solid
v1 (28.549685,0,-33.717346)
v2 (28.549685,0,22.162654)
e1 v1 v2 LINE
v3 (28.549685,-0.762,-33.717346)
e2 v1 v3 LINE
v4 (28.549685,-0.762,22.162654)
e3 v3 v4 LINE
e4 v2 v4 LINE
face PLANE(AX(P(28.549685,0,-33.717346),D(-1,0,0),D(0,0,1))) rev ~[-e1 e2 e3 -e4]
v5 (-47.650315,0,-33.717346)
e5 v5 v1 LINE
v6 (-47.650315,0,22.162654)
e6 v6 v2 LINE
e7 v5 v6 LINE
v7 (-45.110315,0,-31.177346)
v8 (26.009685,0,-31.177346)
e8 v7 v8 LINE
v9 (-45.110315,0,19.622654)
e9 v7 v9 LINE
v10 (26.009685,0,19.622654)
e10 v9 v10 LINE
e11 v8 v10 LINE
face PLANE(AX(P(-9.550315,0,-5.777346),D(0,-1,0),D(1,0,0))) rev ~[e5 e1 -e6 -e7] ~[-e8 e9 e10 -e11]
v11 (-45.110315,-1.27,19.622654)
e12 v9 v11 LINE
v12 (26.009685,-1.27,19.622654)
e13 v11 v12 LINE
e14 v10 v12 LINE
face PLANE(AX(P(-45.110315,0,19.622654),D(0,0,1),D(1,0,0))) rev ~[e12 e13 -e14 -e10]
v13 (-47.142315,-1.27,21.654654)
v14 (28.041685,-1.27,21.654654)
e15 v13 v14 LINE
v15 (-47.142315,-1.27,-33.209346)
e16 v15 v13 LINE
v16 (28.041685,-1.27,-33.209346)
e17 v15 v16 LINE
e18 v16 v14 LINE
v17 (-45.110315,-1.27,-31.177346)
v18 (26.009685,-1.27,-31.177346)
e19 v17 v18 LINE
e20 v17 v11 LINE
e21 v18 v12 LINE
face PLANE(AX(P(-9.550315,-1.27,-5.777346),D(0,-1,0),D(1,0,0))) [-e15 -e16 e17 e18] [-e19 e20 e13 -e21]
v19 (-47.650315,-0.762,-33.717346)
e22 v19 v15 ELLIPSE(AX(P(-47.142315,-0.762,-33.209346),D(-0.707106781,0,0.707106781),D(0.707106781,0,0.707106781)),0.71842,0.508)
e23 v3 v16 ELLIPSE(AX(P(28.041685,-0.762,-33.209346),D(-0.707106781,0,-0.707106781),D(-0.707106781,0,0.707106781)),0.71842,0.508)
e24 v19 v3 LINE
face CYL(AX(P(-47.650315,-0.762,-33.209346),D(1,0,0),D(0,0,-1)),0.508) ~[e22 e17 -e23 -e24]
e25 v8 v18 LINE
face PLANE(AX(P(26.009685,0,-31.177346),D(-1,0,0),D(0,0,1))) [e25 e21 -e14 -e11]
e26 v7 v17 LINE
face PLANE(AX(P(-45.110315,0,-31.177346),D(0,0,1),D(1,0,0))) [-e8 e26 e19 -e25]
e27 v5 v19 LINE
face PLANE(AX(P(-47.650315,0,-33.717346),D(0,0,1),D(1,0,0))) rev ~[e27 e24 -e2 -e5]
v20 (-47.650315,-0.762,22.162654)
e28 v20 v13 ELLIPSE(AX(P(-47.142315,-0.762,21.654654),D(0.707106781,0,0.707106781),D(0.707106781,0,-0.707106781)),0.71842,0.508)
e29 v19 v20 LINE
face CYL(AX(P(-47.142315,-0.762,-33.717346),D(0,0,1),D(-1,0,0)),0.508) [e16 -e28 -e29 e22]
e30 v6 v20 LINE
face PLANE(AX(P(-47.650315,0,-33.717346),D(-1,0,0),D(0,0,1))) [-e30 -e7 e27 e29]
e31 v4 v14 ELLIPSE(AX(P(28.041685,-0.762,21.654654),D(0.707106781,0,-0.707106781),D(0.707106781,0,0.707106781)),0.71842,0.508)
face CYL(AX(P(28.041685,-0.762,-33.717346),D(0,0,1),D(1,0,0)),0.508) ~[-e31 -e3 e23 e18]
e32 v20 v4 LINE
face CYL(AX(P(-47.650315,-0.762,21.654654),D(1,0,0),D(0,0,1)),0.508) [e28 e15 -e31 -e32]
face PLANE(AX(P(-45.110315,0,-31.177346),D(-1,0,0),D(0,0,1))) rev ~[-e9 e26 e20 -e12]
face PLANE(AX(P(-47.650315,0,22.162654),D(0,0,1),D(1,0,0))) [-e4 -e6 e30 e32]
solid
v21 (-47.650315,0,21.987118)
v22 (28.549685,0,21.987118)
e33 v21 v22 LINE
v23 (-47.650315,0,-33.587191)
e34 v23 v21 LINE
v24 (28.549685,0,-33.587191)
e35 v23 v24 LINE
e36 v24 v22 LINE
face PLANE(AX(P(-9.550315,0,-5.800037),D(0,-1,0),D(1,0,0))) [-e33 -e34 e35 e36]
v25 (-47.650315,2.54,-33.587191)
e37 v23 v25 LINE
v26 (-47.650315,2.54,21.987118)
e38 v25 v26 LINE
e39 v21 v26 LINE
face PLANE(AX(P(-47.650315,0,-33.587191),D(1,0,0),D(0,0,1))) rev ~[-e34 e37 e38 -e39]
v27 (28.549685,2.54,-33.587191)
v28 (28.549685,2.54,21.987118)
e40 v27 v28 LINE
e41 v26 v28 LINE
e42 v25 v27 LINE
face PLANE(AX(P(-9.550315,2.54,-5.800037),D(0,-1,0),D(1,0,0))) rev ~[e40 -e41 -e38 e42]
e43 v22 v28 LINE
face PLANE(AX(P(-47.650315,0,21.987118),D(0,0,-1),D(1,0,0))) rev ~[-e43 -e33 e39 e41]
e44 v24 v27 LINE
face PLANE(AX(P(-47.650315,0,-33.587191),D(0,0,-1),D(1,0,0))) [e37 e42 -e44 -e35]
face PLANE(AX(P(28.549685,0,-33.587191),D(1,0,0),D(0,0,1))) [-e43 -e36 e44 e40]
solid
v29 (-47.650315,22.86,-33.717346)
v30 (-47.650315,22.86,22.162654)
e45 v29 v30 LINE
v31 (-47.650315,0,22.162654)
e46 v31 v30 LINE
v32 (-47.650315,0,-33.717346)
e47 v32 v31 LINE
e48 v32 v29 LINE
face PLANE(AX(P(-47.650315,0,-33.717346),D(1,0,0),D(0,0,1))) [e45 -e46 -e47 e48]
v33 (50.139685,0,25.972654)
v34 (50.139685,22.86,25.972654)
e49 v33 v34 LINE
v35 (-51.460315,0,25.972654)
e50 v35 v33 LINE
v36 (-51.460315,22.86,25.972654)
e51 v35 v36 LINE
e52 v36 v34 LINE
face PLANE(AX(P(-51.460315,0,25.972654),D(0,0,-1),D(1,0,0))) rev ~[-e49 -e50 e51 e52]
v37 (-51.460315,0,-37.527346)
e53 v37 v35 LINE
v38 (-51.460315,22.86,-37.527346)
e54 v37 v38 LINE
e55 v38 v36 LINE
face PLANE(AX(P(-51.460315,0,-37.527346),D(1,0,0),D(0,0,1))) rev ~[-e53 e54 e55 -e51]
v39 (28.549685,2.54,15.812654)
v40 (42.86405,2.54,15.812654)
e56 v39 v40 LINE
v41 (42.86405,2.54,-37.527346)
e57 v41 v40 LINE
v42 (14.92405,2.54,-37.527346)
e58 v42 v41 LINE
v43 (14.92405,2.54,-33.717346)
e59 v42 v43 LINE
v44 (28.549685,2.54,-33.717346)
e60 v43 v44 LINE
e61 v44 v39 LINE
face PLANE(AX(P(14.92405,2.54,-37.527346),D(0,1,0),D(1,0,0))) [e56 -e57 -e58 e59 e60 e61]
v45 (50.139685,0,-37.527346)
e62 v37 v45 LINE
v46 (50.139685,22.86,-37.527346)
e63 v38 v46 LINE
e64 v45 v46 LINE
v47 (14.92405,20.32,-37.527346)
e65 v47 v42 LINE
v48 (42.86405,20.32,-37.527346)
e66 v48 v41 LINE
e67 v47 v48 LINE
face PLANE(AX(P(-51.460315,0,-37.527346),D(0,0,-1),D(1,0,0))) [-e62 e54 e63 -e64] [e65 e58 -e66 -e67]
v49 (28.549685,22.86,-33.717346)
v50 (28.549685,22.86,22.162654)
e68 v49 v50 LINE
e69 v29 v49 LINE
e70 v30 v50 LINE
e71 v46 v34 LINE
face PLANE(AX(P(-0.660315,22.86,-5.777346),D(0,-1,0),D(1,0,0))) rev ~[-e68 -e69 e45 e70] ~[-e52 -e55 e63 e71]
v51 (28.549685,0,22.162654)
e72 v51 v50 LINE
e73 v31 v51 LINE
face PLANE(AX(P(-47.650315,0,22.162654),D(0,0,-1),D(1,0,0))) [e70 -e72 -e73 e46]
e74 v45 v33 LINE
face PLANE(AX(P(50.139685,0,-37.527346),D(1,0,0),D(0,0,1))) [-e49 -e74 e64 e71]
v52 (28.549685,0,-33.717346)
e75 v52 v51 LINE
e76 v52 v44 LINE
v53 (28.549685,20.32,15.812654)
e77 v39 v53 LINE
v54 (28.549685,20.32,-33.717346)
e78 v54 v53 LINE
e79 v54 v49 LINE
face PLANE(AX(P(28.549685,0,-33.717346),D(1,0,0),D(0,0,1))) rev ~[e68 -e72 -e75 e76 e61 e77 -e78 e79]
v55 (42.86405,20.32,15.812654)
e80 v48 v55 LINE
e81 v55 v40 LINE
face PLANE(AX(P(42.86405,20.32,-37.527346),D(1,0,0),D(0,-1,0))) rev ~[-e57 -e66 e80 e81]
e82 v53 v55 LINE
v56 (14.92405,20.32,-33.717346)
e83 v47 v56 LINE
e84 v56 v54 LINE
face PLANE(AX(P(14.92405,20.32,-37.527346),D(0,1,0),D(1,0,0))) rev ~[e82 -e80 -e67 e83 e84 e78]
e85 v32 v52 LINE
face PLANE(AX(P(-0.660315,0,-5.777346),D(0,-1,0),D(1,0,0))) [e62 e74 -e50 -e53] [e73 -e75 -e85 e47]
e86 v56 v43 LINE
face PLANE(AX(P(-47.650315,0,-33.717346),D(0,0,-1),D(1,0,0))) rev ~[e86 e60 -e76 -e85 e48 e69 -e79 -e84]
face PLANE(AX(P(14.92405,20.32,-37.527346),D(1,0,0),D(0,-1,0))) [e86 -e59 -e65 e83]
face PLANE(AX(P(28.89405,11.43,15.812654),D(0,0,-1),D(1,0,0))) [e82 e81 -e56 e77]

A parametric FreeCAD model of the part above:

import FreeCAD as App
import Part
import Sketcher

V = App.Vector
Q = App.Units.Quantity


def edges_at(feature, points):
    """Names of the edges that pass closest to the given points."""
    edges = feature.Shape.Edges
    near = lambda p: min(range(len(edges)), key=lambda i: edges[i].distToShape(Part.Vertex(*p))[0])
    return sorted({f"Edge{near(p) + 1}" for p in points})

doc = App.newDocument("Part")
body = doc.addObject("PartDesign::Body", "Body")

# Sketch on XZ plane
sketch1 = doc.addObject("Sketcher::SketchObject", "Sketch")
body.addObject(sketch1)
sketch1.AttachmentSupport = (doc.XZ_Plane, [""])
sketch1.MapMode = "FlatFace"
sketch1.addGeometry([
    Part.LineSegment(V(-47.650315, 22.162654, 0), V(-47.650315, -33.717346, 0)),  # 0
    Part.LineSegment(V(-47.650315, -33.717346, 0), V(28.549685, -33.717346, 0)),  # 1
    Part.LineSegment(V(28.549685, -33.717346, 0), V(28.549685, 22.162654, 0)),  # 2
    Part.LineSegment(V(28.549685, 22.162654, 0), V(-47.650315, 22.162654, 0)),  # 3
    Part.LineSegment(V(26.009685, -31.177346, 0), V(-45.110315, -31.177346, 0)),  # 4
    Part.LineSegment(V(-45.110315, -31.177346, 0), V(-45.110315, 19.622654, 0)),  # 5
    Part.LineSegment(V(-45.110315, 19.622654, 0), V(26.009685, 19.622654, 0)),  # 6
    Part.LineSegment(V(26.009685, 19.622654, 0), V(26.009685, -31.177346, 0)),  # 7
], False)
sketch1.addConstraint([
    Sketcher.Constraint("Coincident", 0, 2, 1, 1),
    Sketcher.Constraint("Coincident", 1, 2, 2, 1),
    Sketcher.Constraint("Coincident", 2, 2, 3, 1),
    Sketcher.Constraint("Coincident", 3, 2, 0, 1),
    Sketcher.Constraint("Coincident", 4, 2, 5, 1),
    Sketcher.Constraint("Coincident", 5, 2, 6, 1),
    Sketcher.Constraint("Coincident", 6, 2, 7, 1),
    Sketcher.Constraint("Coincident", 7, 2, 4, 1),
    Sketcher.Constraint("Vertical", 0),
    Sketcher.Constraint("Horizontal", 1),
    Sketcher.Constraint("Vertical", 2),
    Sketcher.Constraint("Horizontal", 3),
    Sketcher.Constraint("Horizontal", 4),
    Sketcher.Constraint("Vertical", 5),
    Sketcher.Constraint("Horizontal", 6),
    Sketcher.Constraint("Vertical", 7),
    Sketcher.Constraint("DistanceX", 1, 1, 1, 2, Q("3 in")),
    Sketcher.Constraint("DistanceY", 5, 1, 5, 2, Q("2 in")),
    Sketcher.Constraint("DistanceX", 4, 2, 4, 1, Q("2.8 in")),
    Sketcher.Constraint("DistanceY", 0, 2, 0, 1, Q("2.2 in")),
    Sketcher.Constraint("DistanceX", 0, 2, 4, 2, Q("0.1 in")),
    Sketcher.Constraint("DistanceY", 0, 2, 4, 2, Q("0.1 in")),
    Sketcher.Constraint("DistanceX", 0, 2, -1, 1, Q("47.650315 mm")),
    Sketcher.Constraint("DistanceY", 0, 2, -1, 1, Q("33.717346 mm")),
])
pad1 = doc.addObject("PartDesign::Pad", "Pad")
body.addObject(pad1)
pad1.Profile = sketch1
pad1.Length = Q("0.05 in")
doc.recompute()

fillet = doc.addObject("PartDesign::Fillet", "Fillet")
body.addObject(fillet)
fillet.Base = (pad1, edges_at(pad1, [
    (28.55, -1.27, -5.777),
    (-9.55, -1.27, 22.163),
    (-9.55, -1.27, -33.717),
    (-47.65, -1.27, -5.777),
]))
fillet.Radius = Q("0.02 in")
body2 = doc.addObject("PartDesign::Body", "Body001")

# Sketch on XZ plane
sketch2 = doc.addObject("Sketcher::SketchObject", "Sketch001")
body2.addObject(sketch2)
sketch2.AttachmentSupport = (doc.getObject("XZ_Plane001"), [""])
sketch2.MapMode = "FlatFace"
sketch2.addGeometry([
    Part.LineSegment(V(-51.460315, 25.972654, 0), V(-51.460315, -37.527346, 0)),  # 0
    Part.LineSegment(V(-51.460315, -37.527346, 0), V(50.139685, -37.527346, 0)),  # 1
    Part.LineSegment(V(50.139685, -37.527346, 0), V(50.139685, 25.972654, 0)),  # 2
    Part.LineSegment(V(50.139685, 25.972654, 0), V(-51.460315, 25.972654, 0)),  # 3
    Part.LineSegment(V(28.549685, -33.717346, 0), V(-47.650315, -33.717346, 0)),  # 4
    Part.LineSegment(V(-47.650315, -33.717346, 0), V(-47.650315, 22.162654, 0)),  # 5
    Part.LineSegment(V(-47.650315, 22.162654, 0), V(28.549685, 22.162654, 0)),  # 6
    Part.LineSegment(V(28.549685, 22.162654, 0), V(28.549685, -33.717346, 0)),  # 7
], False)
sketch2.addConstraint([
    Sketcher.Constraint("Coincident", 0, 2, 1, 1),
    Sketcher.Constraint("Coincident", 1, 2, 2, 1),
    Sketcher.Constraint("Coincident", 2, 2, 3, 1),
    Sketcher.Constraint("Coincident", 3, 2, 0, 1),
    Sketcher.Constraint("Coincident", 4, 2, 5, 1),
    Sketcher.Constraint("Coincident", 5, 2, 6, 1),
    Sketcher.Constraint("Coincident", 6, 2, 7, 1),
    Sketcher.Constraint("Coincident", 7, 2, 4, 1),
    Sketcher.Constraint("Vertical", 0),
    Sketcher.Constraint("Horizontal", 1),
    Sketcher.Constraint("Vertical", 2),
    Sketcher.Constraint("Horizontal", 3),
    Sketcher.Constraint("Horizontal", 4),
    Sketcher.Constraint("Vertical", 5),
    Sketcher.Constraint("Horizontal", 6),
    Sketcher.Constraint("Vertical", 7),
    Sketcher.Constraint("DistanceX", 1, 1, 1, 2, Q("4 in")),
    Sketcher.Constraint("DistanceX", 4, 2, 4, 1, Q("3 in")),
    Sketcher.Constraint("DistanceY", 0, 2, 0, 1, Q("2.5 in")),
    Sketcher.Constraint("DistanceY", 5, 1, 5, 2, Q("2.2 in")),
    Sketcher.Constraint("DistanceX", 0, 2, 4, 2, Q("0.15 in")),
    Sketcher.Constraint("DistanceY", 0, 2, 4, 2, Q("0.15 in")),
    Sketcher.Constraint("DistanceX", 0, 2, -1, 1, Q("51.460315 mm")),
    Sketcher.Constraint("DistanceY", 0, 2, -1, 1, Q("37.527346 mm")),
])
pad2 = doc.addObject("PartDesign::Pad", "Pad001")
body2.addObject(pad2)
pad2.Profile = sketch2
pad2.Length = Q("0.9 in")
pad2.Reversed = True

# Sketch on XY plane
sketch3 = doc.addObject("Sketcher::SketchObject", "Sketch002")
body2.addObject(sketch3)
sketch3.AttachmentSupport = (doc.getObject("XY_Plane001"), [""])
sketch3.MapMode = "FlatFace"
sketch3.AttachmentOffset = App.Placement(V(0, 0, -37.527346), App.Rotation())
sketch3.addGeometry([
    Part.LineSegment(V(14.92405, 2.54, 0), V(14.92405, 20.32, 0)),
    Part.LineSegment(V(14.92405, 20.32, 0), V(42.86405, 20.32, 0)),
    Part.LineSegment(V(42.86405, 20.32, 0), V(42.86405, 2.54, 0)),
    Part.LineSegment(V(42.86405, 2.54, 0), V(14.92405, 2.54, 0)),
], False)
sketch3.addConstraint([
    Sketcher.Constraint("Coincident", 0, 2, 1, 1),
    Sketcher.Constraint("Coincident", 1, 2, 2, 1),
    Sketcher.Constraint("Coincident", 2, 2, 3, 1),
    Sketcher.Constraint("Coincident", 3, 2, 0, 1),
    Sketcher.Constraint("Vertical", 0),
    Sketcher.Constraint("Horizontal", 1),
    Sketcher.Constraint("Vertical", 2),
    Sketcher.Constraint("Horizontal", 3),
    Sketcher.Constraint("DistanceX", 1, 1, 1, 2, Q("1.1 in")),
    Sketcher.Constraint("DistanceY", 0, 1, 0, 2, Q("0.7 in")),
    Sketcher.Constraint("DistanceY", -1, 1, 0, 2, Q("0.8 in")),
    Sketcher.Constraint("DistanceX", -1, 1, 0, 2, Q("14.92405 mm")),
])
pocket1 = doc.addObject("PartDesign::Pocket", "Pocket")
body2.addObject(pocket1)
pocket1.Profile = sketch3
pocket1.Length = Q("2.1 in")
pocket1.Reversed = True
body3 = doc.addObject("PartDesign::Body", "Body002")

# Sketch on XZ plane
sketch4 = doc.addObject("Sketcher::SketchObject", "Sketch003")
body3.addObject(sketch4)
sketch4.AttachmentSupport = (doc.getObject("XZ_Plane002"), [""])
sketch4.MapMode = "FlatFace"
sketch4.addGeometry([
    Part.LineSegment(V(-47.650315, 21.987118, 0), V(-47.650315, -33.587191, 0)),
    Part.LineSegment(V(-47.650315, -33.587191, 0), V(28.549685, -33.587191, 0)),
    Part.LineSegment(V(28.549685, -33.587191, 0), V(28.549685, 21.987118, 0)),
    Part.LineSegment(V(28.549685, 21.987118, 0), V(-47.650315, 21.987118, 0)),
], False)
sketch4.addConstraint([
    Sketcher.Constraint("Coincident", 0, 2, 1, 1),
    Sketcher.Constraint("Coincident", 1, 2, 2, 1),
    Sketcher.Constraint("Coincident", 2, 2, 3, 1),
    Sketcher.Constraint("Coincident", 3, 2, 0, 1),
    Sketcher.Constraint("Vertical", 0),
    Sketcher.Constraint("Horizontal", 1),
    Sketcher.Constraint("Vertical", 2),
    Sketcher.Constraint("Horizontal", 3),
    Sketcher.Constraint("DistanceX", 1, 1, 1, 2, Q("3 in")),
    Sketcher.Constraint("DistanceY", 0, 2, 0, 1, Q("55.574309 mm")),
    Sketcher.Constraint("DistanceY", 0, 2, -1, 1, Q("33.587191 mm")),
    Sketcher.Constraint("DistanceX", 0, 2, -1, 1, Q("47.650315 mm")),
])
pad3 = doc.addObject("PartDesign::Pad", "Pad002")
body3.addObject(pad3)
pad3.Profile = sketch4
pad3.Length = Q("0.1 in")
pad3.Reversed = True

doc.recompute()
